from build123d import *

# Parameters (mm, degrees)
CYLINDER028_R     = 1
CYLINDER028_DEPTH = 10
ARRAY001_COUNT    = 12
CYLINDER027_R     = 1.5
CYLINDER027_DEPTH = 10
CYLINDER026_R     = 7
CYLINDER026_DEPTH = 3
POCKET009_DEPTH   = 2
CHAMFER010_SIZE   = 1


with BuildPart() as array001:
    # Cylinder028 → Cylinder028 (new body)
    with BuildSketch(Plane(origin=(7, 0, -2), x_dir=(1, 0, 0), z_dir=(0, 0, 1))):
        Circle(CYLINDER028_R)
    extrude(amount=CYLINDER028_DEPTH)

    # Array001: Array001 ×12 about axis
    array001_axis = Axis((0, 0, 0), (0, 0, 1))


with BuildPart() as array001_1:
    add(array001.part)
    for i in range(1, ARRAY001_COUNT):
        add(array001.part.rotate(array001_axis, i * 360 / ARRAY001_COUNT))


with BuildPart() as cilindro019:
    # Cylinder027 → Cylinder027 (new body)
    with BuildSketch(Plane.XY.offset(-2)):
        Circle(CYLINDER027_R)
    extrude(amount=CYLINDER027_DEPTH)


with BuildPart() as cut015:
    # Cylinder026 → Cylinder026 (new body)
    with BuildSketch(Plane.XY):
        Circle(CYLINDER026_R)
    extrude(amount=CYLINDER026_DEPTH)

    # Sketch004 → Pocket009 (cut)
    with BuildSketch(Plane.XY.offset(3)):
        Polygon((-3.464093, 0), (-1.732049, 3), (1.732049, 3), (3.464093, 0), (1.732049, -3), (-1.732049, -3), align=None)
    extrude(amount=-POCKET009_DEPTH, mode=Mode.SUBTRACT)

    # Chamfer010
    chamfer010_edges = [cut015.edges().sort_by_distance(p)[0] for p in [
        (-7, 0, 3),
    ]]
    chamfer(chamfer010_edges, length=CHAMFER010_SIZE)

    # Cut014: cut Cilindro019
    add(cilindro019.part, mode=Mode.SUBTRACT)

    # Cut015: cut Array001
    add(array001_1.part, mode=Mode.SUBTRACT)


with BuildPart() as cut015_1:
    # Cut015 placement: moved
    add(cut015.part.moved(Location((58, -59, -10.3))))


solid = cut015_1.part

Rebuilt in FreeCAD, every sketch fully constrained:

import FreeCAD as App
import Part
import Sketcher


def edges_at(feature, points):
    """Names of the edges that pass closest to the given points."""
    edges = feature.Shape.Edges
    near = lambda p: min(range(len(edges)), key=lambda i: edges[i].distToShape(Part.Vertex(*p))[0])
    return sorted({f"Edge{near(p) + 1}" for p in points})

doc = App.newDocument("Part")
body = doc.addObject("PartDesign::Body", "Body")

# Sketch on XY plane
sketch1 = body.newObject("Sketcher::SketchObject", "Sketch")
sketch1.AttachmentSupport = (doc.getObject("XY_Plane"), [""])
sketch1.MapMode = "FlatFace"
sketch1.AttachmentOffset = App.Placement(App.Vector(0, 0, -2), App.Rotation())
sketch1.addGeometry(Part.Circle(App.Vector(7, 0, 0), App.Vector(0, 0, 1), 1), False)
sketch1.addConstraint(Sketcher.Constraint("PointOnObject", 0, 3, -1))
sketch1.addConstraint(Sketcher.Constraint("Diameter", 0, 2.0))
sketch1.addConstraint(Sketcher.Constraint("DistanceX", -1, 1, 0, 3, 7.0))
pad1 = body.newObject("PartDesign::Pad", "Pad")
pad1.Profile = sketch1
pad1.Length = 10
body2 = doc.addObject("PartDesign::Body", "Body001")
body2.AllowCompound = True
doc.recompute()

body2.BaseFeature = body
doc.recompute()

body3 = doc.addObject("PartDesign::Body", "Body002")
body3.BaseFeature = body
body3.Placement = App.Placement(App.Vector(0, 0, 0), App.Rotation(App.Vector(0, 0, 1), 30))
boolean = body2.newObject("PartDesign::Boolean", "Boolean")
boolean.Type = "Fuse"
boolean.addObjects([body3])
doc.recompute()

body4 = doc.addObject("PartDesign::Body", "Body003")
body4.BaseFeature = body
body4.Placement = App.Placement(App.Vector(0, 0, 0), App.Rotation(App.Vector(0, 0, 1), 60))
boolean2 = body2.newObject("PartDesign::Boolean", "Boolean001")
boolean2.Type = "Fuse"
boolean2.addObjects([body4])
doc.recompute()

body5 = doc.addObject("PartDesign::Body", "Body004")
body5.BaseFeature = body
body5.Placement = App.Placement(App.Vector(0, 0, 0), App.Rotation(App.Vector(0, 0, 1), 90))
boolean3 = body2.newObject("PartDesign::Boolean", "Boolean002")
boolean3.Type = "Fuse"
boolean3.addObjects([body5])
doc.recompute()

body6 = doc.addObject("PartDesign::Body", "Body005")
body6.BaseFeature = body
body6.Placement = App.Placement(App.Vector(0, 0, 0), App.Rotation(App.Vector(0, 0, 1), 120))
boolean4 = body2.newObject("PartDesign::Boolean", "Boolean003")
boolean4.Type = "Fuse"
boolean4.addObjects([body6])
doc.recompute()

body7 = doc.addObject("PartDesign::Body", "Body006")
body7.BaseFeature = body
body7.Placement = App.Placement(App.Vector(0, 0, 0), App.Rotation(App.Vector(0, 0, 1), 150))
boolean5 = body2.newObject("PartDesign::Boolean", "Boolean004")
boolean5.Type = "Fuse"
boolean5.addObjects([body7])
doc.recompute()

body8 = doc.addObject("PartDesign::Body", "Body007")
body8.BaseFeature = body
body8.Placement = App.Placement(App.Vector(0, 0, 0), App.Rotation(App.Vector(0, 0, 1), 180))
boolean6 = body2.newObject("PartDesign::Boolean", "Boolean005")
boolean6.Type = "Fuse"
boolean6.addObjects([body8])
doc.recompute()

body9 = doc.addObject("PartDesign::Body", "Body008")
body9.BaseFeature = body
body9.Placement = App.Placement(App.Vector(0, 0, 0), App.Rotation(App.Vector(0, 0, 1), 210))
boolean7 = body2.newObject("PartDesign::Boolean", "Boolean006")
boolean7.Type = "Fuse"
boolean7.addObjects([body9])
doc.recompute()

body10 = doc.addObject("PartDesign::Body", "Body009")
body10.BaseFeature = body
body10.Placement = App.Placement(App.Vector(0, 0, 0), App.Rotation(App.Vector(0, 0, 1), 240))
boolean8 = body2.newObject("PartDesign::Boolean", "Boolean007")
boolean8.Type = "Fuse"
boolean8.addObjects([body10])
doc.recompute()

body11 = doc.addObject("PartDesign::Body", "Body010")
body11.BaseFeature = body
body11.Placement = App.Placement(App.Vector(0, 0, 0), App.Rotation(App.Vector(0, 0, 1), 270))
boolean9 = body2.newObject("PartDesign::Boolean", "Boolean008")
boolean9.Type = "Fuse"
boolean9.addObjects([body11])
doc.recompute()

body12 = doc.addObject("PartDesign::Body", "Body011")
body12.BaseFeature = body
body12.Placement = App.Placement(App.Vector(0, 0, 0), App.Rotation(App.Vector(0, 0, 1), 300))
boolean10 = body2.newObject("PartDesign::Boolean", "Boolean009")
boolean10.Type = "Fuse"
boolean10.addObjects([body12])
doc.recompute()

body.Placement = App.Placement(App.Vector(0, 0, 0), App.Rotation(App.Vector(0, 0, 1), 330))
boolean11 = body2.newObject("PartDesign::Boolean", "Boolean010")
boolean11.Type = "Fuse"
boolean11.addObjects([body])
body13 = doc.addObject("PartDesign::Body", "Body012")

# Sketch on XY plane
sketch2 = body13.newObject("Sketcher::SketchObject", "Sketch001")
sketch2.AttachmentSupport = (doc.getObject("XY_Plane012"), [""])
sketch2.MapMode = "FlatFace"
sketch2.AttachmentOffset = App.Placement(App.Vector(0, 0, -2), App.Rotation())
sketch2.addGeometry(Part.Circle(App.Vector(0, 0, 0), App.Vector(0, 0, 1), 1.5), False)
sketch2.addConstraint(Sketcher.Constraint("Coincident", 0, 3, -1, 1))
sketch2.addConstraint(Sketcher.Constraint("Diameter", 0, 3.0))
pad2 = body13.newObject("PartDesign::Pad", "Pad001")
pad2.Profile = sketch2
pad2.Length = 10
body14 = doc.addObject("PartDesign::Body", "Body013")

# Sketch on XY plane
sketch3 = body14.newObject("Sketcher::SketchObject", "Sketch002")
sketch3.AttachmentSupport = (doc.getObject("XY_Plane013"), [""])
sketch3.MapMode = "FlatFace"
sketch3.addGeometry(Part.Circle(App.Vector(0, 0, 0), App.Vector(0, 0, 1), 7), False)
sketch3.addConstraint(Sketcher.Constraint("Coincident", 0, 3, -1, 1))
sketch3.addConstraint(Sketcher.Constraint("Diameter", 0, 14.0))
pad3 = body14.newObject("PartDesign::Pad", "Pad002")
pad3.Profile = sketch3
pad3.Length = 3

# Sketch on XY plane
sketch4 = body14.newObject("Sketcher::SketchObject", "Sketch003")
sketch4.AttachmentSupport = (doc.getObject("XY_Plane013"), [""])
sketch4.MapMode = "FlatFace"
sketch4.AttachmentOffset = App.Placement(App.Vector(0, 0, 3), App.Rotation())
sketch4.addGeometry(Part.LineSegment(App.Vector(-1.7, 3, 0), App.Vector(-3.5, 0, 0)), False)
sketch4.addGeometry(Part.LineSegment(App.Vector(-3.5, 0, 0), App.Vector(-1.7, -3, 0)), False)
sketch4.addGeometry(Part.LineSegment(App.Vector(-1.7, -3, 0), App.Vector(1.7, -3, 0)), False)
sketch4.addGeometry(Part.LineSegment(App.Vector(1.7, -3, 0), App.Vector(3.5, 0, 0)), False)
sketch4.addGeometry(Part.LineSegment(App.Vector(3.5, 0, 0), App.Vector(1.7, 3, 0)), False)
sketch4.addGeometry(Part.LineSegment(App.Vector(1.7, 3, 0), App.Vector(-1.7, 3, 0)), False)
sketch4.addConstraint(Sketcher.Constraint("Coincident", 0, 2, 1, 1))
sketch4.addConstraint(Sketcher.Constraint("Coincident", 1, 2, 2, 1))
sketch4.addConstraint(Sketcher.Constraint("Coincident", 2, 2, 3, 1))
sketch4.addConstraint(Sketcher.Constraint("Coincident", 3, 2, 4, 1))
sketch4.addConstraint(Sketcher.Constraint("Coincident", 4, 2, 5, 1))
sketch4.addConstraint(Sketcher.Constraint("Coincident", 5, 2, 0, 1))
sketch4.addConstraint(Sketcher.Constraint("Horizontal", 2))
sketch4.addConstraint(Sketcher.Constraint("Horizontal", 5))
sketch4.addConstraint(Sketcher.Constraint("Symmetric", 0, 2, 3, 2, -1, 1))
sketch4.addConstraint(Sketcher.Constraint("Symmetric", 1, 2, 4, 2, -1, 1))
sketch4.addConstraint(Sketcher.Constraint("PointOnObject", 0, 2, -1))
sketch4.addConstraint(Sketcher.Constraint("Parallel", 0, 3))
sketch4.addConstraint(Sketcher.Constraint("Vertical", 2, 2, 4, 2))
sketch4.addConstraint(Sketcher.Constraint("DistanceY", 1, 2, -1, 1, 3.0))
sketch4.addConstraint(Sketcher.Constraint("Distance", 0, 3.464098))
sketch4.addConstraint(Sketcher.Constraint("DistanceX", 2, 1, 2, 2, 3.464098))
pocket1 = body14.newObject("PartDesign::Pocket", "Pocket")
pocket1.Profile = sketch4
pocket1.Length = 2
doc.recompute()

chamfer = body14.newObject("PartDesign::Chamfer", "Chamfer")
chamfer.Base = (pocket1, edges_at(pocket1, [(-7, 0, 3)]))
chamfer.Size = 1
doc.recompute()

boolean12 = body14.newObject("PartDesign::Boolean", "Boolean011")
boolean12.Type = "Cut"
boolean12.addObjects([body13])
doc.recompute()

boolean13 = body14.newObject("PartDesign::Boolean", "Boolean012")
boolean13.Type = "Cut"
boolean13.addObjects([body2])
body15 = doc.addObject("PartDesign::Body", "Body014")
doc.recompute()

body14.Placement = App.Placement(App.Vector(58, -59, -10.3), App.Rotation(App.Vector(0, 0, 1), 0))
boolean14 = body15.newObject("PartDesign::Boolean", "Boolean013")
boolean14.Type = "Fuse"
boolean14.addObjects([body14])

doc.recompute()
